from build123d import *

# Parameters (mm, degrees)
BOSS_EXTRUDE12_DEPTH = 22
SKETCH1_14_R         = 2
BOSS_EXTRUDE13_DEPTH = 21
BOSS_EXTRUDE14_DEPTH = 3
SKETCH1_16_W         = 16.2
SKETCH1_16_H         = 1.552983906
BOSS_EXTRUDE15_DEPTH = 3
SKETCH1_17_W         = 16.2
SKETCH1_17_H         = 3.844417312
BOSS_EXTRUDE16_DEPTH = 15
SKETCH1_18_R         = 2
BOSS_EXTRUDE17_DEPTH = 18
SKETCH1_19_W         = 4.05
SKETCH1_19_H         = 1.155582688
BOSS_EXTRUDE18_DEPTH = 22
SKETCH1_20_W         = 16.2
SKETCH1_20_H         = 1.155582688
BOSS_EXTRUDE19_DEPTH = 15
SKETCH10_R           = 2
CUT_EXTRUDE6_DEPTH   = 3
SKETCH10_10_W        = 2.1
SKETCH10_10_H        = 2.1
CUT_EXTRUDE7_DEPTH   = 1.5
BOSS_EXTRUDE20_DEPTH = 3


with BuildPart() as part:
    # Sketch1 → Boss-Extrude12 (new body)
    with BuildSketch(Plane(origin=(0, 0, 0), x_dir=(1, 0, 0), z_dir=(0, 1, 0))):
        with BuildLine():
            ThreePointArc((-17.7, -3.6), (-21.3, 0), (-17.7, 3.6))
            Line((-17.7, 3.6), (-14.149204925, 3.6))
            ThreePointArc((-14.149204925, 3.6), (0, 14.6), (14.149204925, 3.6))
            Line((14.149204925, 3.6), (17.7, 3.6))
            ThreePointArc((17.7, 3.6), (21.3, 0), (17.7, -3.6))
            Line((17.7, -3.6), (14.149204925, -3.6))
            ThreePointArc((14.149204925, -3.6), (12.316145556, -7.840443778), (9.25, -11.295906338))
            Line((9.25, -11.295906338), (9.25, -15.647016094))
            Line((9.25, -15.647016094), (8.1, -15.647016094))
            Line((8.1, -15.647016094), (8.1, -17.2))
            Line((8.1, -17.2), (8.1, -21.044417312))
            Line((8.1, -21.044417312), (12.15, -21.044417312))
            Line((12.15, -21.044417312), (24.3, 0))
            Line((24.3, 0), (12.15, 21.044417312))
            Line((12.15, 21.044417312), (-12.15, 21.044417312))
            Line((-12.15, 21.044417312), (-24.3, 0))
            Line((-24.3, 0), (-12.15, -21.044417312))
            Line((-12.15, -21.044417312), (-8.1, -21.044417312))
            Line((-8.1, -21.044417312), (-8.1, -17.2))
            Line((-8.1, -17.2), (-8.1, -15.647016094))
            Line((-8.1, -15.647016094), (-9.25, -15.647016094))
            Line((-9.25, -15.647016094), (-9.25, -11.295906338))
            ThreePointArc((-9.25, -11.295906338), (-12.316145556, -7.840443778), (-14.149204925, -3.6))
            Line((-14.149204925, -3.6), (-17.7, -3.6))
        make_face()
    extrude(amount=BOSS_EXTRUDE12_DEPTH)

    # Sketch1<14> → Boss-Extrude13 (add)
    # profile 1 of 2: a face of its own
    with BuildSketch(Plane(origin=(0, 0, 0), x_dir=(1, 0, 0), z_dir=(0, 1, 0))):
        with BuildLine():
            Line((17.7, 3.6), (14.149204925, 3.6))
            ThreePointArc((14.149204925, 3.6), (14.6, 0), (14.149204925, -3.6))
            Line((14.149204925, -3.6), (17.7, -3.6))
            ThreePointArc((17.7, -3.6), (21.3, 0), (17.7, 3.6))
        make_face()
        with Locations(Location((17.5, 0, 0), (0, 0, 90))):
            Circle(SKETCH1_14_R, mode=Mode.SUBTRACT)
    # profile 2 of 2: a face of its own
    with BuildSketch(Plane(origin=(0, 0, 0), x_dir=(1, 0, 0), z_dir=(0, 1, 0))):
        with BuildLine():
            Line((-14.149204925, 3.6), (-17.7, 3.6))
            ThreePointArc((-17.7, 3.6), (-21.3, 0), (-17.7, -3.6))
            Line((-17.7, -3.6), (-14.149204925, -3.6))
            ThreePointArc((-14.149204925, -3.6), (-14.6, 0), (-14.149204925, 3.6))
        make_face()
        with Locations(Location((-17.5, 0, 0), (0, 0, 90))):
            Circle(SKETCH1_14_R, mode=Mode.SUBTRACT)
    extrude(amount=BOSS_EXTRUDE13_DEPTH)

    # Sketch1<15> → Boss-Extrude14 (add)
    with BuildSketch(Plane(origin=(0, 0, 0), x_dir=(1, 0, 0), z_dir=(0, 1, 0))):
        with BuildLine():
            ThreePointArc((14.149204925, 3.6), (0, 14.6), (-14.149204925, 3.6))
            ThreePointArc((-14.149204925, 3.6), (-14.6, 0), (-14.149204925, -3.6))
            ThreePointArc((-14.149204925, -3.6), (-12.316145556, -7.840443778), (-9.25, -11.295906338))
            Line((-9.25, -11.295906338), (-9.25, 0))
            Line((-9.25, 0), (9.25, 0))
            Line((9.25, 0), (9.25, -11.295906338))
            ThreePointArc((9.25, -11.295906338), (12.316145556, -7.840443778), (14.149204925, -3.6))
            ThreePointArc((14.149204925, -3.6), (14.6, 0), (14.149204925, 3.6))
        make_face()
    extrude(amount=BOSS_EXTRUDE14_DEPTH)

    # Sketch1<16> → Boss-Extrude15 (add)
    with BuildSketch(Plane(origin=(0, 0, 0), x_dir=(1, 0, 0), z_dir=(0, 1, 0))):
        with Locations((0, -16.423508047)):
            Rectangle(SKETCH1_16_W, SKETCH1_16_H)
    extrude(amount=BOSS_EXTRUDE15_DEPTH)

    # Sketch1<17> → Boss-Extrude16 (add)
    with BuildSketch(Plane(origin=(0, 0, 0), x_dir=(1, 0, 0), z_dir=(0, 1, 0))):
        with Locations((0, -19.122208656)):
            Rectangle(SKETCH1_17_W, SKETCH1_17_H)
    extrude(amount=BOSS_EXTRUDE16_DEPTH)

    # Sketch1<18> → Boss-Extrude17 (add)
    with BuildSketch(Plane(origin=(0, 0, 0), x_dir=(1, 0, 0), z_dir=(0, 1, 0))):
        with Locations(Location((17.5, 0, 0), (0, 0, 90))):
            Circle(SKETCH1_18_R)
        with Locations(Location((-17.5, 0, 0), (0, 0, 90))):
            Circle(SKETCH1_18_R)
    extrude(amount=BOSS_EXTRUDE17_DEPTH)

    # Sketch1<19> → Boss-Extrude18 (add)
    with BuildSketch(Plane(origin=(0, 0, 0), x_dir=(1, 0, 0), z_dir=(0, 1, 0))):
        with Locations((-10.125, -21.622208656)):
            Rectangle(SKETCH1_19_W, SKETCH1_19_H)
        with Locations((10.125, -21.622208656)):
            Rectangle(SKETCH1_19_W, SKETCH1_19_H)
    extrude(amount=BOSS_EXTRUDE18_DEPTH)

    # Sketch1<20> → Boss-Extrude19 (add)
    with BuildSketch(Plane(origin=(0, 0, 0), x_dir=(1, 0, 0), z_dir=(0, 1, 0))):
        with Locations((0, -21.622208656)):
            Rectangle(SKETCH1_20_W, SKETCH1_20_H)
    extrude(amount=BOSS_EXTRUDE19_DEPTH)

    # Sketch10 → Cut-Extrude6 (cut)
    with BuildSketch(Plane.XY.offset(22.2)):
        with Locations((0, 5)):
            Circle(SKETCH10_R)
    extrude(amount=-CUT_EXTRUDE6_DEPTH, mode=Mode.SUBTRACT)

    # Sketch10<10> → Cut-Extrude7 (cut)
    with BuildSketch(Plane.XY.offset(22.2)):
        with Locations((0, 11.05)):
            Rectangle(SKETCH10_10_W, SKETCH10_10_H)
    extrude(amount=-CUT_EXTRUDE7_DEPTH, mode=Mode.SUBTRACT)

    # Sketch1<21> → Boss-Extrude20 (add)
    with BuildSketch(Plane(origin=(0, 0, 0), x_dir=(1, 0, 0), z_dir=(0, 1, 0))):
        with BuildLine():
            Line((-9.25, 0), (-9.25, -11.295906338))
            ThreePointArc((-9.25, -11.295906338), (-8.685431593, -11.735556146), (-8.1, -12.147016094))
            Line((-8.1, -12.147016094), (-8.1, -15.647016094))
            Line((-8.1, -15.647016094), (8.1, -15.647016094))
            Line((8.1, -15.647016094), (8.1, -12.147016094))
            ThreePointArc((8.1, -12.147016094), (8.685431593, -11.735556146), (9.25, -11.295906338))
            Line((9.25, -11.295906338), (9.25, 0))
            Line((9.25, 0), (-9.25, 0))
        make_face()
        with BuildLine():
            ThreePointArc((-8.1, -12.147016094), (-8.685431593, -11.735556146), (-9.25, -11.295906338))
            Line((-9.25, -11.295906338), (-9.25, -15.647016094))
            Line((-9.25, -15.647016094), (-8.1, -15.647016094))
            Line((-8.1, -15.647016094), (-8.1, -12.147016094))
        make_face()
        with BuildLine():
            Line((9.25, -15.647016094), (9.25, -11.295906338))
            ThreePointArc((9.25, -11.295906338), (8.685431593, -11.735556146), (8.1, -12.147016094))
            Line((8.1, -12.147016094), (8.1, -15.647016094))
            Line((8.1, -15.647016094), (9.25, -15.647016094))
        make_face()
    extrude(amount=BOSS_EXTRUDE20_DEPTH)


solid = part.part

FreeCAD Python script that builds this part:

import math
import FreeCAD as App
import Part
import Sketcher
Q = App.Units.Quantity

doc = App.newDocument("Part")
body = doc.addObject("PartDesign::Body", "Body")

# Sketch on XZ plane
sketch1 = body.newObject("Sketcher::SketchObject", "Sketch")
sketch1.AttachmentSupport = (doc.getObject("XZ_Plane"), [""])
sketch1.MapMode = "FlatFace"
sketch1.addGeometry([
    Part.ArcOfCircle(Part.Circle(App.Vector(-17.7, 0, 0), App.Vector(0, 0, 1), 3.6), math.radians(90), math.radians(270)),  # 0
    Part.LineSegment(App.Vector(-17.7, -3.6, 0), App.Vector(-14.1, -3.6, 0)),  # 1
    Part.ArcOfCircle(Part.Circle(App.Vector(0, 0, 0), App.Vector(0, 0, 1), 14.6), math.radians(-166), math.radians(-14)),  # 2
    Part.LineSegment(App.Vector(14.1, -3.6, 0), App.Vector(17.7, -3.6, 0)),  # 3
    Part.ArcOfCircle(Part.Circle(App.Vector(17.7, 0, 0), App.Vector(0, 0, 1), 3.6), math.radians(-90), math.radians(90)),  # 4
    Part.LineSegment(App.Vector(17.7, 3.6, 0), App.Vector(14.1, 3.6, 0)),  # 5
    Part.ArcOfCircle(Part.Circle(App.Vector(0, 0, 0), App.Vector(0, 0, 1), 14.6), math.radians(14), math.radians(51)),  # 6
    Part.LineSegment(App.Vector(9.2, 11.3, 0), App.Vector(9.2, 15.6, 0)),  # 7
    Part.LineSegment(App.Vector(9.2, 15.6, 0), App.Vector(8.1, 15.6, 0)),  # 8
    Part.LineSegment(App.Vector(8.1, 15.6, 0), App.Vector(8.1, 21, 0)),  # 9
    Part.LineSegment(App.Vector(8.1, 21, 0), App.Vector(12.2, 21, 0)),  # 10
    Part.LineSegment(App.Vector(12.2, 21, 0), App.Vector(24.3, 0, 0)),  # 11
    Part.LineSegment(App.Vector(24.3, 0, 0), App.Vector(12.2, -21, 0)),  # 12
    Part.LineSegment(App.Vector(12.2, -21, 0), App.Vector(-12.2, -21, 0)),  # 13
    Part.LineSegment(App.Vector(-12.2, -21, 0), App.Vector(-24.3, 0, 0)),  # 14
    Part.LineSegment(App.Vector(-24.3, 0, 0), App.Vector(-12.2, 21, 0)),  # 15
    Part.LineSegment(App.Vector(-12.2, 21, 0), App.Vector(-8.1, 21, 0)),  # 16
    Part.LineSegment(App.Vector(-8.1, 21, 0), App.Vector(-8.1, 15.6, 0)),  # 17
    Part.LineSegment(App.Vector(-8.1, 15.6, 0), App.Vector(-9.2, 15.6, 0)),  # 18
    Part.LineSegment(App.Vector(-9.2, 15.6, 0), App.Vector(-9.2, 11.3, 0)),  # 19
    Part.ArcOfCircle(Part.Circle(App.Vector(0, 0, 0), App.Vector(0, 0, 1), 14.6), math.radians(129), math.radians(166)),  # 20
    Part.LineSegment(App.Vector(-14.1, 3.6, 0), App.Vector(-17.7, 3.6, 0)),  # 21
], False)
sketch1.addConstraint([
    Sketcher.Constraint("Tangent", 0, 2, 1, 1),
    Sketcher.Constraint("Coincident", 1, 2, 2, 1),
    Sketcher.Constraint("Coincident", 2, 2, 3, 1),
    Sketcher.Constraint("Tangent", 3, 2, 4, 1),
    Sketcher.Constraint("Tangent", 4, 2, 5, 1),
    Sketcher.Constraint("Coincident", 5, 2, 6, 1),
    Sketcher.Constraint("Coincident", 6, 2, 7, 1),
    Sketcher.Constraint("Coincident", 7, 2, 8, 1),
    Sketcher.Constraint("Coincident", 8, 2, 9, 1),
    Sketcher.Constraint("Coincident", 9, 2, 10, 1),
    Sketcher.Constraint("Coincident", 10, 2, 11, 1),
    Sketcher.Constraint("Coincident", 11, 2, 12, 1),
    Sketcher.Constraint("Coincident", 12, 2, 13, 1),
    Sketcher.Constraint("Coincident", 13, 2, 14, 1),
    Sketcher.Constraint("Coincident", 14, 2, 15, 1),
    Sketcher.Constraint("Coincident", 15, 2, 16, 1),
    Sketcher.Constraint("Coincident", 16, 2, 17, 1),
    Sketcher.Constraint("Coincident", 17, 2, 18, 1),
    Sketcher.Constraint("Coincident", 18, 2, 19, 1),
    Sketcher.Constraint("Coincident", 19, 2, 20, 1),
    Sketcher.Constraint("Coincident", 20, 2, 21, 1),
    Sketcher.Constraint("Tangent", 21, 2, 0, 1),
    Sketcher.Constraint("Horizontal", 1),
    Sketcher.Constraint("Horizontal", 3),
    Sketcher.Constraint("Horizontal", 5),
    Sketcher.Constraint("Vertical", 7),
    Sketcher.Constraint("Horizontal", 8),
    Sketcher.Constraint("Vertical", 9),
    Sketcher.Constraint("Horizontal", 10),
    Sketcher.Constraint("Horizontal", 13),
    Sketcher.Constraint("Horizontal", 16),
    Sketcher.Constraint("Vertical", 17),
    Sketcher.Constraint("Horizontal", 18),
    Sketcher.Constraint("Vertical", 19),
    Sketcher.Constraint("Horizontal", 21),
    Sketcher.Constraint("Coincident", 2, 3, -1, 1),
    Sketcher.Constraint("Coincident", 6, 3, -1, 1),
    Sketcher.Constraint("Coincident", 20, 3, -1, 1),
    Sketcher.Constraint("Equal", 0, 4),
    Sketcher.Constraint("Equal", 2, 6),
    Sketcher.Constraint("Equal", 6, 20),
    Sketcher.Constraint("Symmetric", 0, 3, 4, 3, -1, 1),
    Sketcher.Constraint("Symmetric", 10, 2, 13, 2, -1, 1),
    Sketcher.Constraint("Symmetric", 11, 2, 14, 2, -1, 1),
    Sketcher.Constraint("Symmetric", 12, 2, 15, 2, -1, 1),
    Sketcher.Constraint("Symmetric", 8, 2, 17, 2, -2),
    Sketcher.Constraint("PointOnObject", 0, 3, -1),
    Sketcher.Constraint("PointOnObject", 11, 2, -1),
    Sketcher.Constraint("Horizontal", 6, 2, 19, 2),
    Sketcher.Constraint("Vertical", 10, 2, 12, 2),
    Sketcher.Constraint("Radius", 0, Q("3.6 mm")),
    Sketcher.Constraint("Radius", 2, Q("14.6 mm")),
    Sketcher.Constraint("Angle", 11, Q("-60 deg")),
    Sketcher.Constraint("DistanceX", 13, 2, 13, 1, Q("24.3 mm")),
    Sketcher.Constraint("Distance", 11, Q("24.3 mm")),
    Sketcher.Constraint("DistanceX", 8, 2, 8, 1, Q("1.15 mm")),
    Sketcher.Constraint("DistanceX", 10, 1, 10, 2, Q("4.05 mm")),
    Sketcher.Constraint("DistanceX", 0, 3, -1, 1, Q("17.7 mm")),
    Sketcher.Constraint("DistanceY", 9, 1, 9, 2, Q("5.397401 mm")),
])
pad1 = body.newObject("PartDesign::Pad", "Pad")
pad1.Profile = sketch1
pad1.Length = 22
pad1.Reversed = True

# Sketch on XZ plane
sketch2 = body.newObject("Sketcher::SketchObject", "Sketch001")
sketch2.AttachmentSupport = (doc.getObject("XZ_Plane"), [""])
sketch2.MapMode = "FlatFace"
sketch2.addGeometry([
    Part.LineSegment(App.Vector(17.7, -3.6, 0), App.Vector(14.1, -3.6, 0)),  # 0
    Part.ArcOfCircle(Part.Circle(App.Vector(0, 0, 0), App.Vector(0, 0, 1), 14.6), math.radians(-14), math.radians(14)),  # 1
    Part.LineSegment(App.Vector(14.1, 3.6, 0), App.Vector(17.7, 3.6, 0)),  # 2
    Part.ArcOfCircle(Part.Circle(App.Vector(17.7, 0, 0), App.Vector(0, 0, 1), 3.6), math.radians(-90), math.radians(90)),  # 3
    Part.Circle(App.Vector(17.5, 0, 0), App.Vector(0, 0, 1), 2),  # 4
    Part.LineSegment(App.Vector(-14.1, -3.6, 0), App.Vector(-17.7, -3.6, 0)),  # 5
    Part.ArcOfCircle(Part.Circle(App.Vector(-17.7, 0, 0), App.Vector(0, 0, 1), 3.6), math.radians(90), math.radians(270)),  # 6
    Part.LineSegment(App.Vector(-17.7, 3.6, 0), App.Vector(-14.1, 3.6, 0)),  # 7
    Part.ArcOfCircle(Part.Circle(App.Vector(0, 0, 0), App.Vector(0, 0, 1), 14.6), math.radians(166), math.radians(194)),  # 8
    Part.Circle(App.Vector(-17.5, 0, 0), App.Vector(0, 0, 1), 2),  # 9
], False)
sketch2.addConstraint([
    Sketcher.Constraint("Coincident", 0, 2, 1, 1),
    Sketcher.Constraint("Coincident", 1, 2, 2, 1),
    Sketcher.Constraint("Tangent", 2, 2, 3, 2),
    Sketcher.Constraint("Tangent", 3, 1, 0, 1),
    Sketcher.Constraint("Tangent", 5, 2, 6, 2),
    Sketcher.Constraint("Tangent", 6, 1, 7, 1),
    Sketcher.Constraint("Coincident", 7, 2, 8, 1),
    Sketcher.Constraint("Coincident", 8, 2, 5, 1),
    Sketcher.Constraint("Horizontal", 0),
    Sketcher.Constraint("Horizontal", 2),
    Sketcher.Constraint("Horizontal", 5),
    Sketcher.Constraint("Horizontal", 7),
    Sketcher.Constraint("Coincident", 1, 3, -1, 1),
    Sketcher.Constraint("Coincident", 8, 3, -1, 1),
    Sketcher.Constraint("Equal", 3, 6),
    Sketcher.Constraint("Equal", 1, 8),
    Sketcher.Constraint("Equal", 4, 9),
    Sketcher.Constraint("Symmetric", 3, 3, 6, 3, -1, 1),
    Sketcher.Constraint("Symmetric", 4, 3, 9, 3, -1, 1),
    Sketcher.Constraint("PointOnObject", 3, 3, -1),
    Sketcher.Constraint("PointOnObject", 4, 3, -1),
    Sketcher.Constraint("Diameter", 4, Q("4 mm")),
    Sketcher.Constraint("Radius", 1, Q("14.6 mm")),
    Sketcher.Constraint("Radius", 3, Q("3.6 mm")),
    Sketcher.Constraint("DistanceX", 9, 3, 4, 3, Q("35 mm")),
    Sketcher.Constraint("DistanceX", -1, 1, 3, 3, Q("17.7 mm")),
])
pad2 = body.newObject("PartDesign::Pad", "Pad001")
pad2.Profile = sketch2
pad2.Length = 21
pad2.Reversed = True

# Sketch on XZ plane
sketch3 = body.newObject("Sketcher::SketchObject", "Sketch002")
sketch3.AttachmentSupport = (doc.getObject("XZ_Plane"), [""])
sketch3.MapMode = "FlatFace"
sketch3.addGeometry([
    Part.ArcOfCircle(Part.Circle(App.Vector(0, 0, 0), App.Vector(0, 0, 1), 15), math.radians(-166), math.radians(-14)),  # 0
    Part.ArcOfCircle(Part.Circle(App.Vector(0, 0, 0), App.Vector(0, 0, 1), 15), math.radians(166), math.radians(194)),  # 1
    Part.ArcOfCircle(Part.Circle(App.Vector(0, 0, 0), App.Vector(0, 0, 1), 15), math.radians(129), math.radians(166)),  # 2
    Part.LineSegment(App.Vector(-9, 11, 0), App.Vector(-9, 0, 0)),  # 3
    Part.LineSegment(App.Vector(-9, 0, 0), App.Vector(9, 0, 0)),  # 4
    Part.LineSegment(App.Vector(9, 0, 0), App.Vector(9, 11, 0)),  # 5
    Part.ArcOfCircle(Part.Circle(App.Vector(0, 0, 0), App.Vector(0, 0, 1), 15), math.radians(14), math.radians(51)),  # 6
    Part.ArcOfCircle(Part.Circle(App.Vector(0, 0, 0), App.Vector(0, 0, 1), 15), math.radians(-14), math.radians(14)),  # 7
], False)
sketch3.addConstraint([
    Sketcher.Constraint("Tangent", 0, 1, 1, 2),
    Sketcher.Constraint("Tangent", 1, 1, 2, 2),
    Sketcher.Constraint("Coincident", 2, 1, 3, 1),
    Sketcher.Constraint("Coincident", 3, 2, 4, 1),
    Sketcher.Constraint("Coincident", 4, 2, 5, 1),
    Sketcher.Constraint("Coincident", 5, 2, 6, 2),
    Sketcher.Constraint("Tangent", 6, 1, 7, 2),
    Sketcher.Constraint("Tangent", 7, 1, 0, 2),
    Sketcher.Constraint("Vertical", 3),
    Sketcher.Constraint("Horizontal", 4),
    Sketcher.Constraint("Vertical", 5),
    Sketcher.Constraint("Coincident", 0, 3, -1, 1),
    Sketcher.Constraint("Coincident", 2, 3, -1, 1),
    Sketcher.Constraint("Coincident", 6, 3, -1, 1),
    Sketcher.Constraint("Symmetric", 3, 2, 4, 2, -1, 1),
    Sketcher.Constraint("Horizontal", 1, 1, 6, 1),
    Sketcher.Constraint("Horizontal", 0, 1, 7, 1),
    Sketcher.Constraint("Vertical", 0, 1, 1, 1),
    Sketcher.Constraint("Radius", 0, Q("14.6 mm")),
    Sketcher.Constraint("DistanceX", 4, 1, 4, 2, Q("18.5 mm")),
    Sketcher.Constraint("DistanceY", 0, 1, -1, 1, Q("3.6 mm")),
])
pad3 = body.newObject("PartDesign::Pad", "Pad002")
pad3.Profile = sketch3
pad3.Length = 3
pad3.Reversed = True

# Sketch on XZ plane
sketch4 = body.newObject("Sketcher::SketchObject", "Sketch003")
sketch4.AttachmentSupport = (doc.getObject("XZ_Plane"), [""])
sketch4.MapMode = "FlatFace"
sketch4.addGeometry([
    Part.LineSegment(App.Vector(-8.1, 15.6, 0), App.Vector(-8.1, 17.2, 0)),
    Part.LineSegment(App.Vector(-8.1, 17.2, 0), App.Vector(8.1, 17.2, 0)),
    Part.LineSegment(App.Vector(8.1, 17.2, 0), App.Vector(8.1, 15.6, 0)),
    Part.LineSegment(App.Vector(8.1, 15.6, 0), App.Vector(-8.1, 15.6, 0)),
], False)
sketch4.addConstraint([
    Sketcher.Constraint("Coincident", 0, 2, 1, 1),
    Sketcher.Constraint("Coincident", 1, 2, 2, 1),
    Sketcher.Constraint("Coincident", 2, 2, 3, 1),
    Sketcher.Constraint("Coincident", 3, 2, 0, 1),
    Sketcher.Constraint("Vertical", 0),
    Sketcher.Constraint("Horizontal", 1),
    Sketcher.Constraint("Vertical", 2),
    Sketcher.Constraint("Horizontal", 3),
    Sketcher.Constraint("DistanceX", 1, 1, 1, 2, Q("16.2 mm")),
    Sketcher.Constraint("DistanceX", 0, 2, -1, 1, Q("8.1 mm")),
    Sketcher.Constraint("DistanceY", -1, 1, 0, 2, Q("17.2 mm")),
    Sketcher.Constraint("DistanceY", 0, 1, 0, 2, Q("1.552984 mm")),
])
pad4 = body.newObject("PartDesign::Pad", "Pad003")
pad4.Profile = sketch4
pad4.Length = 3
pad4.Reversed = True

# Sketch on XZ plane
sketch5 = body.newObject("Sketcher::SketchObject", "Sketch004")
sketch5.AttachmentSupport = (doc.getObject("XZ_Plane"), [""])
sketch5.MapMode = "FlatFace"
sketch5.addGeometry([
    Part.LineSegment(App.Vector(-8.1, 17.2, 0), App.Vector(-8.1, 21, 0)),
    Part.LineSegment(App.Vector(-8.1, 21, 0), App.Vector(8.1, 21, 0)),
    Part.LineSegment(App.Vector(8.1, 21, 0), App.Vector(8.1, 17.2, 0)),
    Part.LineSegment(App.Vector(8.1, 17.2, 0), App.Vector(-8.1, 17.2, 0)),
], False)
sketch5.addConstraint([
    Sketcher.Constraint("Coincident", 0, 2, 1, 1),
    Sketcher.Constraint("Coincident", 1, 2, 2, 1),
    Sketcher.Constraint("Coincident", 2, 2, 3, 1),
    Sketcher.Constraint("Coincident", 3, 2, 0, 1),
    Sketcher.Constraint("Vertical", 0),
    Sketcher.Constraint("Horizontal", 1),
    Sketcher.Constraint("Vertical", 2),
    Sketcher.Constraint("Horizontal", 3),
    Sketcher.Constraint("DistanceX", 1, 1, 1, 2, Q("16.2 mm")),
    Sketcher.Constraint("DistanceX", 0, 2, -1, 1, Q("8.1 mm")),
    Sketcher.Constraint("DistanceY", -1, 1, 2, 2, Q("17.2 mm")),
    Sketcher.Constraint("DistanceY", 0, 1, 0, 2, Q("3.844417 mm")),
])
pad5 = body.newObject("PartDesign::Pad", "Pad004")
pad5.Profile = sketch5
pad5.Length = 15
pad5.Reversed = True

# Sketch on XZ plane
sketch6 = body.newObject("Sketcher::SketchObject", "Sketch005")
sketch6.AttachmentSupport = (doc.getObject("XZ_Plane"), [""])
sketch6.MapMode = "FlatFace"
sketch6.addGeometry([
    Part.Circle(App.Vector(17.5, 0, 0), App.Vector(0, 0, 1), 2),
    Part.Circle(App.Vector(-17.5, 0, 0), App.Vector(0, 0, 1), 2),
], False)
sketch6.addConstraint([
    Sketcher.Constraint("Equal", 0, 1),
    Sketcher.Constraint("Symmetric", 0, 3, 1, 3, -1, 1),
    Sketcher.Constraint("PointOnObject", 0, 3, -1),
    Sketcher.Constraint("Diameter", 0, Q("4 mm")),
    Sketcher.Constraint("DistanceX", 1, 3, 0, 3, Q("35 mm")),
])
pad6 = body.newObject("PartDesign::Pad", "Pad005")
pad6.Profile = sketch6
pad6.Length = 18
pad6.Reversed = True

# Sketch on XZ plane
sketch7 = body.newObject("Sketcher::SketchObject", "Sketch006")
sketch7.AttachmentSupport = (doc.getObject("XZ_Plane"), [""])
sketch7.MapMode = "FlatFace"
sketch7.addGeometry([
    Part.LineSegment(App.Vector(-12.2, 21, 0), App.Vector(-12.2, 22.2, 0)),  # 0
    Part.LineSegment(App.Vector(-12.2, 22.2, 0), App.Vector(-8.1, 22.2, 0)),  # 1
    Part.LineSegment(App.Vector(-8.1, 22.2, 0), App.Vector(-8.1, 21, 0)),  # 2
    Part.LineSegment(App.Vector(-8.1, 21, 0), App.Vector(-12.2, 21, 0)),  # 3
    Part.LineSegment(App.Vector(8.1, 21, 0), App.Vector(8.1, 22.2, 0)),  # 4
    Part.LineSegment(App.Vector(8.1, 22.2, 0), App.Vector(12.2, 22.2, 0)),  # 5
    Part.LineSegment(App.Vector(12.2, 22.2, 0), App.Vector(12.2, 21, 0)),  # 6
    Part.LineSegment(App.Vector(12.2, 21, 0), App.Vector(8.1, 21, 0)),  # 7
], False)
sketch7.addConstraint([
    Sketcher.Constraint("Coincident", 0, 2, 1, 1),
    Sketcher.Constraint("Coincident", 1, 2, 2, 1),
    Sketcher.Constraint("Coincident", 2, 2, 3, 1),
    Sketcher.Constraint("Coincident", 3, 2, 0, 1),
    Sketcher.Constraint("Coincident", 4, 2, 5, 1),
    Sketcher.Constraint("Coincident", 5, 2, 6, 1),
    Sketcher.Constraint("Coincident", 6, 2, 7, 1),
    Sketcher.Constraint("Coincident", 7, 2, 4, 1),
    Sketcher.Constraint("Vertical", 0),
    Sketcher.Constraint("Horizontal", 1),
    Sketcher.Constraint("Vertical", 2),
    Sketcher.Constraint("Horizontal", 3),
    Sketcher.Constraint("Vertical", 4),
    Sketcher.Constraint("Horizontal", 5),
    Sketcher.Constraint("Vertical", 6),
    Sketcher.Constraint("Horizontal", 7),
    Sketcher.Constraint("Symmetric", 1, 2, 4, 2, -2),
    Sketcher.Constraint("Symmetric", 3, 2, 6, 2, -2),
    Sketcher.Constraint("DistanceX", 1, 1, 1, 2, Q("4.05 mm")),
    Sketcher.Constraint("DistanceY", -1, 1, 0, 2, Q("22.2 mm")),
    Sketcher.Constraint("DistanceX", 1, 2, -1, 1, Q("8.1 mm")),
    Sketcher.Constraint("DistanceY", 0, 1, 0, 2, Q("1.155583 mm")),
])
pad7 = body.newObject("PartDesign::Pad", "Pad006")
pad7.Profile = sketch7
pad7.Length = 22
pad7.Reversed = True

# Sketch on XZ plane
sketch8 = body.newObject("Sketcher::SketchObject", "Sketch007")
sketch8.AttachmentSupport = (doc.getObject("XZ_Plane"), [""])
sketch8.MapMode = "FlatFace"
sketch8.addGeometry([
    Part.LineSegment(App.Vector(-8.1, 21, 0), App.Vector(-8.1, 22.2, 0)),
    Part.LineSegment(App.Vector(-8.1, 22.2, 0), App.Vector(8.1, 22.2, 0)),
    Part.LineSegment(App.Vector(8.1, 22.2, 0), App.Vector(8.1, 21, 0)),
    Part.LineSegment(App.Vector(8.1, 21, 0), App.Vector(-8.1, 21, 0)),
], False)
sketch8.addConstraint([
    Sketcher.Constraint("Coincident", 0, 2, 1, 1),
    Sketcher.Constraint("Coincident", 1, 2, 2, 1),
    Sketcher.Constraint("Coincident", 2, 2, 3, 1),
    Sketcher.Constraint("Coincident", 3, 2, 0, 1),
    Sketcher.Constraint("Vertical", 0),
    Sketcher.Constraint("Horizontal", 1),
    Sketcher.Constraint("Vertical", 2),
    Sketcher.Constraint("Horizontal", 3),
    Sketcher.Constraint("DistanceX", 1, 1, 1, 2, Q("16.2 mm")),
    Sketcher.Constraint("DistanceX", 0, 2, -1, 1, Q("8.1 mm")),
    Sketcher.Constraint("DistanceY", -1, 1, 0, 2, Q("22.2 mm")),
    Sketcher.Constraint("DistanceY", 0, 1, 0, 2, Q("1.155583 mm")),
])
pad8 = body.newObject("PartDesign::Pad", "Pad007")
pad8.Profile = sketch8
pad8.Length = 15
pad8.Reversed = True

# Sketch on XY plane
sketch9 = body.newObject("Sketcher::SketchObject", "Sketch008")
sketch9.AttachmentSupport = (doc.getObject("XY_Plane"), [""])
sketch9.MapMode = "FlatFace"
sketch9.AttachmentOffset = App.Placement(App.Vector(0, 0, 22.2), App.Rotation())
sketch9.addGeometry(Part.Circle(App.Vector(0, 5, 0), App.Vector(0, 0, 1), 2), False)
sketch9.addConstraint([
    Sketcher.Constraint("PointOnObject", 0, 3, -2),
    Sketcher.Constraint("Diameter", 0, Q("4 mm")),
    Sketcher.Constraint("DistanceY", -1, 1, 0, 3, Q("5 mm")),
])
pocket1 = body.newObject("PartDesign::Pocket", "Pocket")
pocket1.Profile = sketch9
pocket1.Length = 3

# Sketch on XY plane
sketch10 = body.newObject("Sketcher::SketchObject", "Sketch009")
sketch10.AttachmentSupport = (doc.getObject("XY_Plane"), [""])
sketch10.MapMode = "FlatFace"
sketch10.AttachmentOffset = App.Placement(App.Vector(0, 0, 22.2), App.Rotation())
sketch10.addGeometry([
    Part.LineSegment(App.Vector(-1.1, 12.1, 0), App.Vector(-1.1, 10, 0)),
    Part.LineSegment(App.Vector(-1.1, 10, 0), App.Vector(1.1, 10, 0)),
    Part.LineSegment(App.Vector(1.1, 10, 0), App.Vector(1.1, 12.1, 0)),
    Part.LineSegment(App.Vector(1.1, 12.1, 0), App.Vector(-1.1, 12.1, 0)),
], False)
sketch10.addConstraint([
    Sketcher.Constraint("Coincident", 0, 2, 1, 1),
    Sketcher.Constraint("Coincident", 1, 2, 2, 1),
    Sketcher.Constraint("Coincident", 2, 2, 3, 1),
    Sketcher.Constraint("Coincident", 3, 2, 0, 1),
    Sketcher.Constraint("Vertical", 0),
    Sketcher.Constraint("Horizontal", 1),
    Sketcher.Constraint("Vertical", 2),
    Sketcher.Constraint("Horizontal", 3),
    Sketcher.Constraint("Equal", 3, 0),
    Sketcher.Constraint("DistanceX", 1, 1, 1, 2, Q("2.1 mm")),
    Sketcher.Constraint("DistanceY", -1, 1, 0, 2, Q("10 mm")),
    Sketcher.Constraint("DistanceX", 0, 2, -1, 1, Q("1.05 mm")),
])
pocket2 = body.newObject("PartDesign::Pocket", "Pocket001")
pocket2.Profile = sketch10
pocket2.Length = 1.5

# Sketch on XZ plane
sketch11 = body.newObject("Sketcher::SketchObject", "Sketch010")
sketch11.AttachmentSupport = (doc.getObject("XZ_Plane"), [""])
sketch11.MapMode = "FlatFace"
sketch11.addGeometry([
    Part.LineSegment(App.Vector(-9, 0, 0), App.Vector(-9, 16, 0)),
    Part.LineSegment(App.Vector(-9, 16, 0), App.Vector(9, 16, 0)),
    Part.LineSegment(App.Vector(9, 16, 0), App.Vector(9, 0, 0)),
    Part.LineSegment(App.Vector(9, 0, 0), App.Vector(-9, 0, 0)),
], False)
sketch11.addConstraint([
    Sketcher.Constraint("Coincident", 0, 2, 1, 1),
    Sketcher.Constraint("Coincident", 1, 2, 2, 1),
    Sketcher.Constraint("Coincident", 2, 2, 3, 1),
    Sketcher.Constraint("Coincident", 3, 2, 0, 1),
    Sketcher.Constraint("Vertical", 0),
    Sketcher.Constraint("Horizontal", 1),
    Sketcher.Constraint("Vertical", 2),
    Sketcher.Constraint("Horizontal", 3),
    Sketcher.Constraint("Symmetric", 2, 2, 3, 2, -1, 1),
    Sketcher.Constraint("DistanceX", 1, 1, 1, 2, Q("18.5 mm")),
    Sketcher.Constraint("DistanceY", 0, 1, 0, 2, Q("15.647016 mm")),
])
pad9 = body.newObject("PartDesign::Pad", "Pad008")
pad9.Profile = sketch11
pad9.Length = 3
pad9.Reversed = True

doc.recompute()
